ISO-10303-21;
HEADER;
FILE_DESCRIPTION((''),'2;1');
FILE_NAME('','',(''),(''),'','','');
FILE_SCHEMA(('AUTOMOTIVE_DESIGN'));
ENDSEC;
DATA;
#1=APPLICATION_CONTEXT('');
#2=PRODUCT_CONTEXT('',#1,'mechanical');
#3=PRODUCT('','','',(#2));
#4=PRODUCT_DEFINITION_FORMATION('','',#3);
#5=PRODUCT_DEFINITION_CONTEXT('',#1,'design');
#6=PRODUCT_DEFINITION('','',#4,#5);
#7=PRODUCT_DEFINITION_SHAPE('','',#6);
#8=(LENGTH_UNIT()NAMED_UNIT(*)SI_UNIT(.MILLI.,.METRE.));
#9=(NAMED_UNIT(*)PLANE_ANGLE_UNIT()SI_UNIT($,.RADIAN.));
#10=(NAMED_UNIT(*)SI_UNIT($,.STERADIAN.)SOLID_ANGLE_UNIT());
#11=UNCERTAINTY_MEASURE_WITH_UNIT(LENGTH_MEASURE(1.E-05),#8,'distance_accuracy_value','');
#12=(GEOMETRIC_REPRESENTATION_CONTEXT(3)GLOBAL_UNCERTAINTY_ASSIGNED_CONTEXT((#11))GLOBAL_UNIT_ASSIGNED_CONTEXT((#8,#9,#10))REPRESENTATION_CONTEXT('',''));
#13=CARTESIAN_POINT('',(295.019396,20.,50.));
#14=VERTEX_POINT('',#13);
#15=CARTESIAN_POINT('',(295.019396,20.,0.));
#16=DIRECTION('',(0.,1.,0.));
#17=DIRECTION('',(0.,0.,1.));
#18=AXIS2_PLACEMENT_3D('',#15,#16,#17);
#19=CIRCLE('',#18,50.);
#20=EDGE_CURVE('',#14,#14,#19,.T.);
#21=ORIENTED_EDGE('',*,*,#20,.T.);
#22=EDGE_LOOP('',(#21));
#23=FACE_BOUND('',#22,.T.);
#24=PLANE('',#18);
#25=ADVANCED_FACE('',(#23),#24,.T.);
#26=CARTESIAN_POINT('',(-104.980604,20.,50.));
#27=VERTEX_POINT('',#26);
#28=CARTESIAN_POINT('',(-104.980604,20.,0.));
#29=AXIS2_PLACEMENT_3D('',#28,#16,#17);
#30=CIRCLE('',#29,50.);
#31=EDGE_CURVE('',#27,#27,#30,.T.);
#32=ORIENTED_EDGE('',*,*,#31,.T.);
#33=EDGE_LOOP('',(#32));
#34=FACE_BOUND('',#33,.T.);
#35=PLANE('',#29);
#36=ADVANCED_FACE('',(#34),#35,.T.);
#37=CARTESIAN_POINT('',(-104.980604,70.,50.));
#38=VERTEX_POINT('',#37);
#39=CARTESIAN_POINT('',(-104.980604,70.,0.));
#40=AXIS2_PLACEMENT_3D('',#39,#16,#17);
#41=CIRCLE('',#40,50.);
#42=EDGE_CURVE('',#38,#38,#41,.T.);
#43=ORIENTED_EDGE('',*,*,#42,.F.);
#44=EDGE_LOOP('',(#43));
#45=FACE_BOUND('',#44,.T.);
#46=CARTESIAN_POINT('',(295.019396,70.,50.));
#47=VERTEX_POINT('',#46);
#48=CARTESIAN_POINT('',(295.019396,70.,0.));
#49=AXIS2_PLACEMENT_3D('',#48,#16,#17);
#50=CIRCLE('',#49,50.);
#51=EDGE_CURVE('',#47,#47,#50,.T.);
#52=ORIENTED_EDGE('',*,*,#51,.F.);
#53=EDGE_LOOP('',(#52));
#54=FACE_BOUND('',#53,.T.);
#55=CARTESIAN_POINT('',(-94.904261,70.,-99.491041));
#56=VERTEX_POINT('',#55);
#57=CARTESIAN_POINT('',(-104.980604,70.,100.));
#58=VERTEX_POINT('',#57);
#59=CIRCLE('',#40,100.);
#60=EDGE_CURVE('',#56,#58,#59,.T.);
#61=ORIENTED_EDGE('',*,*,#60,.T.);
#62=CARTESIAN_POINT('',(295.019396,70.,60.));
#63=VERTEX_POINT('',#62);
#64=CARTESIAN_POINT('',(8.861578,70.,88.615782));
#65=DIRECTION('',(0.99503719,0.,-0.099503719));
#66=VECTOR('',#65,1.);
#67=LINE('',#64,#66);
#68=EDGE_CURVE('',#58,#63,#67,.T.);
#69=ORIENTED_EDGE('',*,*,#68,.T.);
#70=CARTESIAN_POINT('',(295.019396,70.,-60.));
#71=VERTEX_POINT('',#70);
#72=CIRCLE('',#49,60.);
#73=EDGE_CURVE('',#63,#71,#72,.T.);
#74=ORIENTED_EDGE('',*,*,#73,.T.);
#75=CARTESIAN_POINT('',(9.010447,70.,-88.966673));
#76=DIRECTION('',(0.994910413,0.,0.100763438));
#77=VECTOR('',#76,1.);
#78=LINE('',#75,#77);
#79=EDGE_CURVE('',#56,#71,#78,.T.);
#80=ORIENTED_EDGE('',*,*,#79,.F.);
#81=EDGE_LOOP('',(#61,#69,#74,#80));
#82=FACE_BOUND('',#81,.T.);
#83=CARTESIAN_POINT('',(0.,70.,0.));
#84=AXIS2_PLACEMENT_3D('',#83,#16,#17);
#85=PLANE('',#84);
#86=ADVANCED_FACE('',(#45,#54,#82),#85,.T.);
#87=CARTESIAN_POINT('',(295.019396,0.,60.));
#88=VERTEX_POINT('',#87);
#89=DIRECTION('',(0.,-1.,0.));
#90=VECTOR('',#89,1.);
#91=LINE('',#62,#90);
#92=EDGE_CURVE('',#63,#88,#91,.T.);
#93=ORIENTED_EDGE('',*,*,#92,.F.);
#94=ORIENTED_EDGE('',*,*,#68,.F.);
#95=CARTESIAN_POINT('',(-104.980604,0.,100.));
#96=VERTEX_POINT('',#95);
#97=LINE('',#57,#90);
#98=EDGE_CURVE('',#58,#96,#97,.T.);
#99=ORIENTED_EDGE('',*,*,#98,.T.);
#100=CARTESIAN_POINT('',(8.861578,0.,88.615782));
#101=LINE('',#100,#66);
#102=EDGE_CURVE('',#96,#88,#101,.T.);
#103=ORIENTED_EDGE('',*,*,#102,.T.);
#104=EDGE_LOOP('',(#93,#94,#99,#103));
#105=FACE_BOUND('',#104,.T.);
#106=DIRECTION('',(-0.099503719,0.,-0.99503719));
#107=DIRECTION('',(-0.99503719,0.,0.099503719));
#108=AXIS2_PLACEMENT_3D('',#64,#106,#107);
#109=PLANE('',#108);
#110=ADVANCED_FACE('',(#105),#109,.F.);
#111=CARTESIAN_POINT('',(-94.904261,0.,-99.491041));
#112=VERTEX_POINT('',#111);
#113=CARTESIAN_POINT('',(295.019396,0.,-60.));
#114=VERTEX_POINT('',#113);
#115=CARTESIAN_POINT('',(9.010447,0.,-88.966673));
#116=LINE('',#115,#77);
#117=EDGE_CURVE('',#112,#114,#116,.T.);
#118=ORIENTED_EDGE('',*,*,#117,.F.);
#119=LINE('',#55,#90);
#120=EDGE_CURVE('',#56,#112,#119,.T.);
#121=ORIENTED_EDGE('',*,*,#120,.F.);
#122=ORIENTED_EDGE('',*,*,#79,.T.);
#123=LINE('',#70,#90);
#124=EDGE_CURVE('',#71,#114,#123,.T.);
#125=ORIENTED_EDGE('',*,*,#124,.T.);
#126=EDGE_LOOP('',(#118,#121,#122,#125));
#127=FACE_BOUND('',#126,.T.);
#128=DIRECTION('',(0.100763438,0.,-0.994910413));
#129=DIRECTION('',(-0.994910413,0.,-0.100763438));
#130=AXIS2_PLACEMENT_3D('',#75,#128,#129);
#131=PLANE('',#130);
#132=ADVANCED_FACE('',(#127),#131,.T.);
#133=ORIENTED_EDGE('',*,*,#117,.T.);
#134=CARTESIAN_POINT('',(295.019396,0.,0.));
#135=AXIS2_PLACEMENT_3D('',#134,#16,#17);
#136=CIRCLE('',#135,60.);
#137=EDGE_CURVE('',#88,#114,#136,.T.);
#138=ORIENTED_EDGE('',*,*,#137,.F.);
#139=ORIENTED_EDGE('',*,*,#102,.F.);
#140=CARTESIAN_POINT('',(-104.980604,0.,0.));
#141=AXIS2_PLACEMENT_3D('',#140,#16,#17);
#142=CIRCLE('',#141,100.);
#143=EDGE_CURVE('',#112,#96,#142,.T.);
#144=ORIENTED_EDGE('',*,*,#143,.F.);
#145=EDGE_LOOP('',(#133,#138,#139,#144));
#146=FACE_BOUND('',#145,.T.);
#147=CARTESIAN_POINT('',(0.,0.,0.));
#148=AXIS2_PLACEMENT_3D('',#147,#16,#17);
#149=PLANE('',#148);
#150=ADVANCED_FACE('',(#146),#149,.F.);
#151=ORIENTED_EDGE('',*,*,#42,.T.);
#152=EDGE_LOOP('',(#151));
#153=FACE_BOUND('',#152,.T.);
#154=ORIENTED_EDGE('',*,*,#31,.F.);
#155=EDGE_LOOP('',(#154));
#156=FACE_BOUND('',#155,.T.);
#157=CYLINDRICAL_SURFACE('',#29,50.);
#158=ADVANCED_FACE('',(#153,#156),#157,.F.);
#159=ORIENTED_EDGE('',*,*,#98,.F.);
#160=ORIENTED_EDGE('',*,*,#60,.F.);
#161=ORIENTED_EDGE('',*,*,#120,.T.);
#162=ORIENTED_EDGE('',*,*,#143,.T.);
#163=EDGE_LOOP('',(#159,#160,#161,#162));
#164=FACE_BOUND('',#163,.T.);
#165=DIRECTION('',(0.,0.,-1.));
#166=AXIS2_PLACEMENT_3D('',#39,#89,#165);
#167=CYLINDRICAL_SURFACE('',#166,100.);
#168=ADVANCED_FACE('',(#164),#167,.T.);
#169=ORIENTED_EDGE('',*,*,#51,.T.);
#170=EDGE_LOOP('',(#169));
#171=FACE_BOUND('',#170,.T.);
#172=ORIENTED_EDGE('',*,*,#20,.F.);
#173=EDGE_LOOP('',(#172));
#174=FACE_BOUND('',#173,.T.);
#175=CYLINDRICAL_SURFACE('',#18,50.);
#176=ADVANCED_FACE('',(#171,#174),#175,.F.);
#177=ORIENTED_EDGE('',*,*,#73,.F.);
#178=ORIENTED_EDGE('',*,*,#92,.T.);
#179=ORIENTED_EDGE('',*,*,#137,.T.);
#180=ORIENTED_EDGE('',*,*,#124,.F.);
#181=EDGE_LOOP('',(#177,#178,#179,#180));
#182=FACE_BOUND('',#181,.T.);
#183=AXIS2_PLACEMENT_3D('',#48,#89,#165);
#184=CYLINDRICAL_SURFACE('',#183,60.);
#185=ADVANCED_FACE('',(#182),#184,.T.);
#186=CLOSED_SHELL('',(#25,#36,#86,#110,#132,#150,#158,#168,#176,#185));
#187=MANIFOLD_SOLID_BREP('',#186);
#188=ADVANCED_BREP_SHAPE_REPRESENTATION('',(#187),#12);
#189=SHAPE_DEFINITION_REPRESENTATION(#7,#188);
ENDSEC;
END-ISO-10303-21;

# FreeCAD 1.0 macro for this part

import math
import FreeCAD as App
import Part
import Sketcher
from FreeCAD import Vector

doc = App.newDocument("Part")
body = doc.addObject("PartDesign::Body", "Body")

# Sketch on XZ plane
sketch1 = doc.addObject("Sketcher::SketchObject", "Sketch")
body.addObject(sketch1)
sketch1.AttachmentSupport = (doc.XZ_Plane, [""])
sketch1.MapMode = "FlatFace"
sketch1.addGeometry(Part.LineSegment(Vector(295.019396, -60, 0), Vector(-94.904261, -99.491041, 0)), False)
sketch1.addGeometry(Part.ArcOfCircle(Part.Circle(Vector(-104.980604, 0, 0), Vector(0, 0, 1), 100), math.radians(90), math.radians(275.783134)), False)
sketch1.addGeometry(Part.LineSegment(Vector(-104.980604, 100, 0), Vector(-85.178624, 98.019802, 0)), False)
sketch1.addGeometry(Part.LineSegment(Vector(-85.178624, 98.019802, 0), Vector(295.019396, 60, 0)), False)
sketch1.addGeometry(Part.ArcOfCircle(Part.Circle(Vector(295.019396, 0, 0), Vector(0, 0, 1), 60), math.radians(-90), math.radians(90)), False)
sketch1.addConstraint(Sketcher.Constraint("Tangent", 0, 2, 1, 2))
sketch1.addConstraint(Sketcher.Constraint("Coincident", 1, 1, 2, 1))
sketch1.addConstraint(Sketcher.Constraint("Coincident", 2, 2, 3, 1))
sketch1.addConstraint(Sketcher.Constraint("Coincident", 3, 2, 4, 2))
sketch1.addConstraint(Sketcher.Constraint("Coincident", 4, 1, 0, 1))
sketch1.addConstraint(Sketcher.Constraint("Symmetric", 3, 2, 4, 1, -1))
sketch1.addConstraint(Sketcher.Constraint("PointOnObject", 1, 3, -1))
sketch1.addConstraint(Sketcher.Constraint("Parallel", 2, 3))
sketch1.addConstraint(Sketcher.Constraint("Vertical", 4, 3, 3, 2))
sketch1.addConstraint(Sketcher.Constraint("Radius", 1, 100.0))
sketch1.addConstraint(Sketcher.Constraint("Radius", 4, 60.0))
sketch1.addConstraint(Sketcher.Constraint("DistanceX", 1, 3, 4, 3, 400.0))
sketch1.addConstraint(Sketcher.Constraint("DistanceX", 1, 1, 4, 3, 400.0))
sketch1.addConstraint(Sketcher.Constraint("DistanceY", -1, 1, 2, 2, 98.019802))
sketch1.addConstraint(Sketcher.Constraint("DistanceX", 0, 2, -1, 1, 94.904261))
pad1 = doc.addObject("PartDesign::Pad", "Pad")
body.addObject(pad1)
pad1.Profile = sketch1
pad1.Length = 70
pad1.Reversed = True

# Sketch on XZ plane
sketch2 = doc.addObject("Sketcher::SketchObject", "Sketch001")
body.addObject(sketch2)
sketch2.AttachmentSupport = (doc.XZ_Plane, [""])
sketch2.MapMode = "FlatFace"
sketch2.AttachmentOffset = App.Placement(Vector(0, 0, -70), App.Rotation())
sketch2.addGeometry(Part.Circle(Vector(-104.980604, 0, 0), Vector(0, 0, 1), 50), False)
sketch2.addGeometry(Part.Circle(Vector(295.019396, 0, 0), Vector(0, 0, 1), 50), False)
sketch2.addConstraint(Sketcher.Constraint("Equal", 0, 1))
sketch2.addConstraint(Sketcher.Constraint("PointOnObject", 0, 3, -1))
sketch2.addConstraint(Sketcher.Constraint("PointOnObject", 1, 3, -1))
sketch2.addConstraint(Sketcher.Constraint("Diameter", 0, 100.0))
sketch2.addConstraint(Sketcher.Constraint("DistanceX", 0, 3, 1, 3, 400.0))
sketch2.addConstraint(Sketcher.Constraint("DistanceX", 0, 3, -1, 1, 104.980604))
pocket1 = doc.addObject("PartDesign::Pocket", "Pocket")
body.addObject(pocket1)
pocket1.Profile = sketch2
pocket1.Length = 50
pocket1.Reversed = True

doc.recompute()
